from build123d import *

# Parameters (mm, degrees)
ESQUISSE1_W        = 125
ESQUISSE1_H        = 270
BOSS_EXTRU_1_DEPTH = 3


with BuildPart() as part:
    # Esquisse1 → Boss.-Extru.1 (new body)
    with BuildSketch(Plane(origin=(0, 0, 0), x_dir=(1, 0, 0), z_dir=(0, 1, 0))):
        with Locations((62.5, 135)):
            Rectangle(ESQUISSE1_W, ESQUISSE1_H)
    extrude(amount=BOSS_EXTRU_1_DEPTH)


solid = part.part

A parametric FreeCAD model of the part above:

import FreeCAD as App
import Part
import Sketcher

doc = App.newDocument("Part")
body = doc.addObject("PartDesign::Body", "Body")

# Sketch on XZ plane
sketch1 = body.newObject("Sketcher::SketchObject", "Sketch")
sketch1.AttachmentSupport = (doc.getObject("XZ_Plane"), [""])
sketch1.MapMode = "FlatFace"
sketch1.addGeometry([
    Part.LineSegment(App.Vector(0, -270, 0), App.Vector(0, 0, 0)),
    Part.LineSegment(App.Vector(0, 0, 0), App.Vector(125, 0, 0)),
    Part.LineSegment(App.Vector(125, 0, 0), App.Vector(125, -270, 0)),
    Part.LineSegment(App.Vector(125, -270, 0), App.Vector(0, -270, 0)),
], False)
sketch1.addConstraint([
    Sketcher.Constraint("Coincident", 0, 2, 1, 1),
    Sketcher.Constraint("Coincident", 1, 2, 2, 1),
    Sketcher.Constraint("Coincident", 2, 2, 3, 1),
    Sketcher.Constraint("Coincident", 3, 2, 0, 1),
    Sketcher.Constraint("Vertical", 0),
    Sketcher.Constraint("Horizontal", 1),
    Sketcher.Constraint("Vertical", 2),
    Sketcher.Constraint("Horizontal", 3),
    Sketcher.Constraint("Coincident", 0, 2, -1, 1),
    Sketcher.Constraint("DistanceX", 1, 1, 1, 2, 125.0),
    Sketcher.Constraint("DistanceY", 0, 1, 0, 2, 270.0),
])
pad1 = body.newObject("PartDesign::Pad", "Pad")
pad1.Profile = sketch1
pad1.Length = 3
pad1.Reversed = True

doc.recompute()
